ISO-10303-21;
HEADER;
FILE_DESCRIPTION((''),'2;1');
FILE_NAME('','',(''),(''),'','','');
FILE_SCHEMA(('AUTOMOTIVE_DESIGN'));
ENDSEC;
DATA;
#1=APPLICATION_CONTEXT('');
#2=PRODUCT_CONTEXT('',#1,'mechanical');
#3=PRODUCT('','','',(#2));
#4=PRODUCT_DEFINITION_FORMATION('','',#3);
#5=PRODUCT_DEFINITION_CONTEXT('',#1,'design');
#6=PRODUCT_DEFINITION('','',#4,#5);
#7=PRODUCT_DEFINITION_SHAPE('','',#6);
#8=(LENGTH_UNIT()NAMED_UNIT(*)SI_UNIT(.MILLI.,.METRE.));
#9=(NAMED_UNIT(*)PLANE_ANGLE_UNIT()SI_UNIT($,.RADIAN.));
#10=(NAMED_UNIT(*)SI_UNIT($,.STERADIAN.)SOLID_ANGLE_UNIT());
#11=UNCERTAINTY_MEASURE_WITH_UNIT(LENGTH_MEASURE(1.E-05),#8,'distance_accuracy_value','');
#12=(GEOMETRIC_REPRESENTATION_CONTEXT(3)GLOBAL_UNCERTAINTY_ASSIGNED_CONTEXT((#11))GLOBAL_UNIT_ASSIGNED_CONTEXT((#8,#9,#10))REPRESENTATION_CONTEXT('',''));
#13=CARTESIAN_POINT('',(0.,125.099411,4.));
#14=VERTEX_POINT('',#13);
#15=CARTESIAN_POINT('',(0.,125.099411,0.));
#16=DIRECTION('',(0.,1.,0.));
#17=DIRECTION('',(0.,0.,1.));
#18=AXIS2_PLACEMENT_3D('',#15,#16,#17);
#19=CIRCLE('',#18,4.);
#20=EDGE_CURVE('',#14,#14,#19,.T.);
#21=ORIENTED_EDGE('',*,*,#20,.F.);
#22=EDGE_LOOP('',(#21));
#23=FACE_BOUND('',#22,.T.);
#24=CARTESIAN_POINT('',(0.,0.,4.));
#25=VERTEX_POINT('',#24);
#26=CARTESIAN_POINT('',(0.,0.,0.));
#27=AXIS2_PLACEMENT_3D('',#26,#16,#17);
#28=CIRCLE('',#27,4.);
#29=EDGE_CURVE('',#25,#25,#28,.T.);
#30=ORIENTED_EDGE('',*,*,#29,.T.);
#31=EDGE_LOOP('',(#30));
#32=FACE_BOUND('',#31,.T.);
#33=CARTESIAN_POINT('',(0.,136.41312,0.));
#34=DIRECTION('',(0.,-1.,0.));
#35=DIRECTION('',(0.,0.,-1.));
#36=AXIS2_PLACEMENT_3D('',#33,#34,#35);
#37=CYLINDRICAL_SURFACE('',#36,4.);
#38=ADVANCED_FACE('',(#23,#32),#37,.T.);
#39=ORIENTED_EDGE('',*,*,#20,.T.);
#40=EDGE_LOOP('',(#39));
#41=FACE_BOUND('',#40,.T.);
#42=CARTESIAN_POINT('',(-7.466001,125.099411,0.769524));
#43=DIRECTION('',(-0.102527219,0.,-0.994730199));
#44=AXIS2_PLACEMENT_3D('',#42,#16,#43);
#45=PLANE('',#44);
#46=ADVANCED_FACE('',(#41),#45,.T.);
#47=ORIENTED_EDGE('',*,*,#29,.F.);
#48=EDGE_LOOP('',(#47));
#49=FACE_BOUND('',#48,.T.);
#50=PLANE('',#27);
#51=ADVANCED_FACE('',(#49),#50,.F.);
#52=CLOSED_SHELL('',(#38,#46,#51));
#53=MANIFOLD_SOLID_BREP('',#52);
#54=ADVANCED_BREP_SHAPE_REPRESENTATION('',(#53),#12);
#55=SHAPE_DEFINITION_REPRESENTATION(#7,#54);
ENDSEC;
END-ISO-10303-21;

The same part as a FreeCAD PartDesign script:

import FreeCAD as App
import Part
import Sketcher

doc = App.newDocument("Part")
body = doc.addObject("PartDesign::Body", "Body")

# Sketch on XZ plane
sketch1 = body.newObject("Sketcher::SketchObject", "Sketch")
sketch1.AttachmentSupport = (doc.getObject("XZ_Plane"), [""])
sketch1.MapMode = "FlatFace"
sketch1.addGeometry(Part.Circle(App.Vector(0, 0, 0), App.Vector(0, 0, 1), 4), False)
sketch1.addConstraint([
    Sketcher.Constraint("Coincident", 0, 3, -1, 1),
    Sketcher.Constraint("Diameter", 0, 8.0),
])
pad1 = body.newObject("PartDesign::Pad", "Pad")
pad1.Profile = sketch1
pad1.Length = 125.099411
pad1.Reversed = True

doc.recompute()
